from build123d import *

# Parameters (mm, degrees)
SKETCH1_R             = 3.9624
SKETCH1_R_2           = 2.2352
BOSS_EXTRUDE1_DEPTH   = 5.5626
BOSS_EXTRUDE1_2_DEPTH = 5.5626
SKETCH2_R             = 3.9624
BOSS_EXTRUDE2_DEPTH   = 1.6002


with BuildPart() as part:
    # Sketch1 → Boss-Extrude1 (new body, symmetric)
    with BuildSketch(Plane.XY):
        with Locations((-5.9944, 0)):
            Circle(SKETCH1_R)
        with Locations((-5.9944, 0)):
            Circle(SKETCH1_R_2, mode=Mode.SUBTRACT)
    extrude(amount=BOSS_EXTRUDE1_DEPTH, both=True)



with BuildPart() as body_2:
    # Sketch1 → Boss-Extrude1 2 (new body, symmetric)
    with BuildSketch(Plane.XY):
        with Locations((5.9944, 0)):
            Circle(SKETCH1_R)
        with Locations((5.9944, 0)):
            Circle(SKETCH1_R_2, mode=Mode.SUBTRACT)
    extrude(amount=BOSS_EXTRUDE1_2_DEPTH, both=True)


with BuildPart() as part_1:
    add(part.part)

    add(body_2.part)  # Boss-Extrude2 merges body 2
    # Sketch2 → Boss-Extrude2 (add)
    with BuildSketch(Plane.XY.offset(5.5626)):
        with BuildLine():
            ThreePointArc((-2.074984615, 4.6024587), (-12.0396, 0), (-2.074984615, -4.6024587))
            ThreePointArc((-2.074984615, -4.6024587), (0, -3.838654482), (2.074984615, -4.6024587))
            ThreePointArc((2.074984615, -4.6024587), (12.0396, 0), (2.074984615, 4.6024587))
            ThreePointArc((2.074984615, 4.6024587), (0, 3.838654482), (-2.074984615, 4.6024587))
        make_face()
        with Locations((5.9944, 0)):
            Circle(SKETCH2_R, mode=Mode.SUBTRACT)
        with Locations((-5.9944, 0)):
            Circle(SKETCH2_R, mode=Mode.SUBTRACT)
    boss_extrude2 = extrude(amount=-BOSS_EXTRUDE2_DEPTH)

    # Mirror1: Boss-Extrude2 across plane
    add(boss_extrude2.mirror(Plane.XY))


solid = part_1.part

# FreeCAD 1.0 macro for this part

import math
import FreeCAD as App
import Part
import Sketcher
from FreeCAD import Vector
Q = App.Units.Quantity

doc = App.newDocument("Part")
body = doc.addObject("PartDesign::Body", "Body")

# Sketch on XY plane
sketch1 = body.newObject("Sketcher::SketchObject", "Sketch")
sketch1.AttachmentSupport = (doc.getObject("XY_Plane"), [""])
sketch1.MapMode = "FlatFace"
sketch1.addGeometry([
    Part.Circle(Vector(-6, 0, 0), Vector(0, 0, 1), 4),
    Part.Circle(Vector(-6, 0, 0), Vector(0, 0, 1), 2.2),
], False)
sketch1.addConstraint([
    Sketcher.Constraint("Coincident", 1, 3, 0, 3),
    Sketcher.Constraint("PointOnObject", 0, 3, -1),
    Sketcher.Constraint("Diameter", 0, Q("0.312 in")),
    Sketcher.Constraint("Diameter", 1, Q("0.176 in")),
    Sketcher.Constraint("DistanceX", 0, 3, -1, 1, Q("0.236 in")),
])
pad1 = body.newObject("PartDesign::Pad", "Pad")
pad1.Profile = sketch1
pad1.Length = Q("0.438 in")
pad1.Midplane = True
body2 = doc.addObject("PartDesign::Body", "Body001")

# Sketch on XY plane
sketch2 = body2.newObject("Sketcher::SketchObject", "Sketch001")
sketch2.AttachmentSupport = (doc.getObject("XY_Plane001"), [""])
sketch2.MapMode = "FlatFace"
sketch2.addGeometry([
    Part.Circle(Vector(6, 0, 0), Vector(0, 0, 1), 4),
    Part.Circle(Vector(6, 0, 0), Vector(0, 0, 1), 2.2),
], False)
sketch2.addConstraint([
    Sketcher.Constraint("Coincident", 1, 3, 0, 3),
    Sketcher.Constraint("PointOnObject", 0, 3, -1),
    Sketcher.Constraint("Diameter", 0, Q("0.312 in")),
    Sketcher.Constraint("Diameter", 1, Q("0.176 in")),
    Sketcher.Constraint("DistanceX", -1, 1, 0, 3, Q("0.236 in")),
])
pad2 = body2.newObject("PartDesign::Pad", "Pad001")
pad2.Profile = sketch2
pad2.Length = Q("0.438 in")
pad2.Midplane = True
body.AllowCompound = True
doc.recompute()

boolean = body.newObject("PartDesign::Boolean", "Boolean")
boolean.Type = "Fuse"
boolean.addObjects([body2])

# Sketch on XY plane
sketch3 = body.newObject("Sketcher::SketchObject", "Sketch002")
sketch3.AttachmentSupport = (doc.getObject("XY_Plane"), [""])
sketch3.MapMode = "FlatFace"
sketch3.AttachmentOffset = App.Placement(Vector(0, 0, 0.219 * 25.4), App.Rotation())
sketch3.addGeometry([
    Part.ArcOfCircle(Part.Circle(Vector(-6, 0, 0), Vector(0, 0, 1), 6), math.radians(50), math.radians(310)),  # 0
    Part.ArcOfCircle(Part.Circle(Vector(0, -7, 0), Vector(0, 0, 1), 3.2), math.radians(50), math.radians(130)),  # 1
    Part.ArcOfCircle(Part.Circle(Vector(6, 0, 0), Vector(0, 0, 1), 6), math.radians(-130), math.radians(130)),  # 2
    Part.ArcOfCircle(Part.Circle(Vector(0, 7, 0), Vector(0, 0, 1), 3.2), math.radians(-130), math.radians(-50)),  # 3
    Part.Circle(Vector(-6, 0, 0), Vector(0, 0, 1), 4),  # 4
    Part.Circle(Vector(6, 0, 0), Vector(0, 0, 1), 4),  # 5
], False)
sketch3.addConstraint([
    Sketcher.Constraint("Tangent", 0, 2, 1, 2),
    Sketcher.Constraint("Tangent", 1, 1, 2, 1),
    Sketcher.Constraint("Tangent", 2, 2, 3, 2),
    Sketcher.Constraint("Tangent", 3, 1, 0, 1),
    Sketcher.Constraint("Coincident", 4, 3, 0, 3),
    Sketcher.Constraint("Coincident", 5, 3, 2, 3),
    Sketcher.Constraint("Equal", 0, 2),
    Sketcher.Constraint("Equal", 1, 3),
    Sketcher.Constraint("Equal", 4, 5),
    Sketcher.Constraint("Symmetric", 0, 3, 2, 3, -1, 1),
    Sketcher.Constraint("PointOnObject", 0, 3, -1),
    Sketcher.Constraint("Diameter", 4, Q("0.312 in")),
    Sketcher.Constraint("Radius", 0, Q("0.238 in")),
    Sketcher.Constraint("Radius", 1, Q("0.126 in")),
    Sketcher.Constraint("DistanceX", 0, 3, -1, 1, Q("0.236 in")),
])
pad3 = body.newObject("PartDesign::Pad", "Pad002")
pad3.Profile = sketch3
pad3.Length = Q("0.063 in")
pad3.Reversed = True
doc.recompute()

mirrored = body.newObject("PartDesign::Mirrored", "Mirrored")
mirrored.Originals = [pad3]
mirrored.MirrorPlane = (doc.getObject("XY_Plane"), [""])
body.Tip = mirrored

doc.recompute()
